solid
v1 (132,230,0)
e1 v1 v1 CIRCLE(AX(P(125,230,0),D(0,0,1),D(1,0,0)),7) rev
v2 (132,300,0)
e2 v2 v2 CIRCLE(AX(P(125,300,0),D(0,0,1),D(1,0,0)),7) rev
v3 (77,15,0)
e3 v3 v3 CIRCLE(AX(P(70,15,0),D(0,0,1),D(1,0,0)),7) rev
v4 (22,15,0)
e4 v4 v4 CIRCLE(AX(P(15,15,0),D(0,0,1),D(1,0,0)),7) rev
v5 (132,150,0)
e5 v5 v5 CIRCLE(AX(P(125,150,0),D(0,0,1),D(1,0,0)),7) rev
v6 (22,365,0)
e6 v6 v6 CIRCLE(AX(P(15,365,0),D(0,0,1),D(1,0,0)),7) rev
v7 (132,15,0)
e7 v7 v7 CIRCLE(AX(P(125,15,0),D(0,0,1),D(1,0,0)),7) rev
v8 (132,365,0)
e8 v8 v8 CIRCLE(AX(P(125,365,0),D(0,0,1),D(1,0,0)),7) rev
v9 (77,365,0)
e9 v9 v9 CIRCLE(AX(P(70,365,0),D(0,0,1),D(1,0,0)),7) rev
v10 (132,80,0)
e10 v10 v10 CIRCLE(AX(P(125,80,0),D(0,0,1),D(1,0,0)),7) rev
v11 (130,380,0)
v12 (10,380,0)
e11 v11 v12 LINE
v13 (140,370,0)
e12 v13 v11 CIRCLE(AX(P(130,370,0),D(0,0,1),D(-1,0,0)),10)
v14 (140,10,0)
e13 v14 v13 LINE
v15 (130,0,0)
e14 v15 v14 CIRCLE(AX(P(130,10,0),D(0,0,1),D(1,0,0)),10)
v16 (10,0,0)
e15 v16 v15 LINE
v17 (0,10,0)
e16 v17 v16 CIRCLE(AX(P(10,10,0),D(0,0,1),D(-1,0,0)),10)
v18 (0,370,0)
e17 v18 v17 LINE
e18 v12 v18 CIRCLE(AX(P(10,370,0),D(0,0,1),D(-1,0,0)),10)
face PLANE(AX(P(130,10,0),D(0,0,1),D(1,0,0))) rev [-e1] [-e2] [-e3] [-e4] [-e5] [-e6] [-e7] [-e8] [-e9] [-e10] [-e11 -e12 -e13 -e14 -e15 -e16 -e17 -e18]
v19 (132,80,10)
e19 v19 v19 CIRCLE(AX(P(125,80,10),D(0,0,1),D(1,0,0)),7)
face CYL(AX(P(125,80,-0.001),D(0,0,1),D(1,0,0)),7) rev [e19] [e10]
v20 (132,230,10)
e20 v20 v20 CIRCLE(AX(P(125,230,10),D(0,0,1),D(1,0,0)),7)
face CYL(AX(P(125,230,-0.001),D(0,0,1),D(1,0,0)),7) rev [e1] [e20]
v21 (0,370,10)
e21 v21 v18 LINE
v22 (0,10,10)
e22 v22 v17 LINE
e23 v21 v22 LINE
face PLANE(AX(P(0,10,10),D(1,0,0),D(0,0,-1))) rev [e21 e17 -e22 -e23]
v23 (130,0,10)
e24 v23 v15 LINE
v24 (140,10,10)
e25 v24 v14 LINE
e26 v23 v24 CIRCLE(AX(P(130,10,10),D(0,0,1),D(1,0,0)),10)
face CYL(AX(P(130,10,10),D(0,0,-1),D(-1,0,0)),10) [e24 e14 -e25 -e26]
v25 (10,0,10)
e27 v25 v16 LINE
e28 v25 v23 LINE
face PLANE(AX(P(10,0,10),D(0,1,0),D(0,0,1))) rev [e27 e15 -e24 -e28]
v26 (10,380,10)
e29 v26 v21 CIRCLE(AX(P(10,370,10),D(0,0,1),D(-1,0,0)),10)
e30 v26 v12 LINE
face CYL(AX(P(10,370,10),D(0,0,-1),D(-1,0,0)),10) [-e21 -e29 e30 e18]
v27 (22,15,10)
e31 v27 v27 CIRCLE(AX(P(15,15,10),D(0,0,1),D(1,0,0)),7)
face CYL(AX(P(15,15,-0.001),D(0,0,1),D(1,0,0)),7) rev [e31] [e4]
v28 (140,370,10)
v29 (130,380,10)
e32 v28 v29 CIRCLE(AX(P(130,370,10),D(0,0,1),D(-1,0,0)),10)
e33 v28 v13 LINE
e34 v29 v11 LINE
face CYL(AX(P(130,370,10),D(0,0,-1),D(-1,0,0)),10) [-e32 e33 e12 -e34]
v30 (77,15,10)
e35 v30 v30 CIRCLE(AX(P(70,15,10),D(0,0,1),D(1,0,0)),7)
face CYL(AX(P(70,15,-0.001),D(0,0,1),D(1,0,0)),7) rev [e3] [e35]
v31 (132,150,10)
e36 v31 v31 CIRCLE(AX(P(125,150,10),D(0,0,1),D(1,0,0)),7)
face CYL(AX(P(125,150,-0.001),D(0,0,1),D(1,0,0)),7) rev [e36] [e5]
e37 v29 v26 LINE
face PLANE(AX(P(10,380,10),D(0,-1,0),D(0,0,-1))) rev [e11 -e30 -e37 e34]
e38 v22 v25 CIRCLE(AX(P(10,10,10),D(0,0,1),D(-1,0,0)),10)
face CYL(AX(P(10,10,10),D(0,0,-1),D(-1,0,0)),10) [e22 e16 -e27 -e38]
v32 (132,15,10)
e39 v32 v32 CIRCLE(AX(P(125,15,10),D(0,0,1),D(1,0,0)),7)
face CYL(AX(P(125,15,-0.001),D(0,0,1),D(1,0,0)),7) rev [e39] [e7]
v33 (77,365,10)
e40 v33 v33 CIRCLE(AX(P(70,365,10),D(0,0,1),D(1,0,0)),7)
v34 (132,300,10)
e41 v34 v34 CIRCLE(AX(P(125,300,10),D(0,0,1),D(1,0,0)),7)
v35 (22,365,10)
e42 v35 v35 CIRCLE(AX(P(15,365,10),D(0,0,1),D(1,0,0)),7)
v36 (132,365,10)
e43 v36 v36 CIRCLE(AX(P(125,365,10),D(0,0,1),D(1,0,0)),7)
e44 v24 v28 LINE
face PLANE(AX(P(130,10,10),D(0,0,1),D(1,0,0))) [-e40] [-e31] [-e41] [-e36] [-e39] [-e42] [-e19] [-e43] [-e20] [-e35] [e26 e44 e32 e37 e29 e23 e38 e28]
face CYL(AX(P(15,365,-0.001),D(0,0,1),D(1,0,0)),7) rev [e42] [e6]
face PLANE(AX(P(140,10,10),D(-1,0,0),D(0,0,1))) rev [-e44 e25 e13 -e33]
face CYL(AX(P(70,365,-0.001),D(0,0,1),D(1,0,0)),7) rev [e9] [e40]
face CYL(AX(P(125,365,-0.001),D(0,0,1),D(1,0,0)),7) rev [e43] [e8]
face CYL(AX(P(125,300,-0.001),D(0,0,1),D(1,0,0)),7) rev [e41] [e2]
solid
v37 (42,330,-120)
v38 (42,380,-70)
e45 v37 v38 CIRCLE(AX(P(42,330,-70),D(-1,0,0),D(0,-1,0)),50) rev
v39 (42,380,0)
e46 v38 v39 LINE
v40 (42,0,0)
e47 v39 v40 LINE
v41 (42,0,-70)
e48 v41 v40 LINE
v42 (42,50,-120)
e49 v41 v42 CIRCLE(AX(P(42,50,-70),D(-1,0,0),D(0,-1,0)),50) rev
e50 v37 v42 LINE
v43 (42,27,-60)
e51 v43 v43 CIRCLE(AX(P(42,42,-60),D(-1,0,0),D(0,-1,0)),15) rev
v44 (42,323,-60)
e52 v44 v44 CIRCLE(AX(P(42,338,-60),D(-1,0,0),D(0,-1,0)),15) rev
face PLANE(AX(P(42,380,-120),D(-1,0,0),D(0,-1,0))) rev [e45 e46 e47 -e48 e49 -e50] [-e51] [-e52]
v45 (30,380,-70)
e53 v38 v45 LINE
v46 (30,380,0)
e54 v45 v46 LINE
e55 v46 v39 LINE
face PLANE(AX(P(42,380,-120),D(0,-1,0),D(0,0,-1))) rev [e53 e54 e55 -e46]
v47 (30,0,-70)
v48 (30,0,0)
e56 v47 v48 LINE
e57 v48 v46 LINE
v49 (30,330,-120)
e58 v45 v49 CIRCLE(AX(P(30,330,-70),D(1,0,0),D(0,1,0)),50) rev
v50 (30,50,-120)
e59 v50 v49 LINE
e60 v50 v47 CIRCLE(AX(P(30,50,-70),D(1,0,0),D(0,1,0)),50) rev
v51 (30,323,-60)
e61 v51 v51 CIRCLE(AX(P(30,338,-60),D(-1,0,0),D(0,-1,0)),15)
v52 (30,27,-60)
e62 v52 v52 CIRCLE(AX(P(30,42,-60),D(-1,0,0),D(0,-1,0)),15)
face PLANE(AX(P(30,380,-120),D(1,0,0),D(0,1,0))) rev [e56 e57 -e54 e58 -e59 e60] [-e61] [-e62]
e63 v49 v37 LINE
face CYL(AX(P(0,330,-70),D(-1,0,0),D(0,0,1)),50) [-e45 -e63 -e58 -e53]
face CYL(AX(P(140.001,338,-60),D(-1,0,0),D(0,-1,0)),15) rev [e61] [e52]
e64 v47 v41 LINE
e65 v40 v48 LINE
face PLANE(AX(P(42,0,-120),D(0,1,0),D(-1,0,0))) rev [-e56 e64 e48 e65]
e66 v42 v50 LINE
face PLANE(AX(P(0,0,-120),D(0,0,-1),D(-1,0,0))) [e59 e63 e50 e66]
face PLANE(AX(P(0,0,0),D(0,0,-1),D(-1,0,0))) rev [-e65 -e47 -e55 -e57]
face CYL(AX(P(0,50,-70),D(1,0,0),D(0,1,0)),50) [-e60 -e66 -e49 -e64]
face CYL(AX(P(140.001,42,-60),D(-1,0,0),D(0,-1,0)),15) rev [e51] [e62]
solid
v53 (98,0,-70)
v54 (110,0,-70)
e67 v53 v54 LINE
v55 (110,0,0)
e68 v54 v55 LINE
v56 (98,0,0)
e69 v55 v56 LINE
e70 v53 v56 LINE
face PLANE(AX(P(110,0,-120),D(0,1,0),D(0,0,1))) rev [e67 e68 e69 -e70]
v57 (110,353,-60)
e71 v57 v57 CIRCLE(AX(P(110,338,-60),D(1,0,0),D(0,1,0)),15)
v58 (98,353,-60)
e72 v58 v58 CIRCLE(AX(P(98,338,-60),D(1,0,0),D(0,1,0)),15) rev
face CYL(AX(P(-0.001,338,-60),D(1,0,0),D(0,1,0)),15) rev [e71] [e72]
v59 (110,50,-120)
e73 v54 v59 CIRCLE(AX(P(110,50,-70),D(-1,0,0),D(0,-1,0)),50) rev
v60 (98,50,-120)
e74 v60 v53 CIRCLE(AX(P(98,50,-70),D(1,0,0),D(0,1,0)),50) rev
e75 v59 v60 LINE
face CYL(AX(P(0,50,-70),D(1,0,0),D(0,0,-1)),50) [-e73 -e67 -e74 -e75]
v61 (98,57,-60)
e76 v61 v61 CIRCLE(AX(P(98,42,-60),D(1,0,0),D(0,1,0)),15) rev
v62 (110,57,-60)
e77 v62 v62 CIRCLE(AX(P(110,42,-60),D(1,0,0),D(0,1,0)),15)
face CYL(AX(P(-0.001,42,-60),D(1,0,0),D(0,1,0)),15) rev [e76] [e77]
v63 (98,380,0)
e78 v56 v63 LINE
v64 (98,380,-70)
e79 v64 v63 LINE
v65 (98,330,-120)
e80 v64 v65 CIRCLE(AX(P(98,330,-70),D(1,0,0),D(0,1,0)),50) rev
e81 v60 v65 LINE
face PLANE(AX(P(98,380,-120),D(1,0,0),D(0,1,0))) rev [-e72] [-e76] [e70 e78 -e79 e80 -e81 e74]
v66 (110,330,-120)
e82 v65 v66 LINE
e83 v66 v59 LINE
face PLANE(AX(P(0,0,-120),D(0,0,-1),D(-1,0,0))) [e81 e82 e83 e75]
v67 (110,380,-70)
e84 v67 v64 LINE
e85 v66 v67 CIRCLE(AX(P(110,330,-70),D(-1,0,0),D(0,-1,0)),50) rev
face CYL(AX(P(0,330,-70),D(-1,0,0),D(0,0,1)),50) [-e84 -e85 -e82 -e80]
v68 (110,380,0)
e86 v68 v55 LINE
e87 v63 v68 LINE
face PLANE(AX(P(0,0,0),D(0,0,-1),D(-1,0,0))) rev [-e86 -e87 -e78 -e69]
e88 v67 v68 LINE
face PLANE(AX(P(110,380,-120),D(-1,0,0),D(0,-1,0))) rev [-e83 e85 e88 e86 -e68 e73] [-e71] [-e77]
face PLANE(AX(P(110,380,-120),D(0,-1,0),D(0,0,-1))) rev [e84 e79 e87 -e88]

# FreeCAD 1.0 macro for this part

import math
import FreeCAD as App
import Part
import Sketcher
from FreeCAD import Vector
Q = App.Units.Quantity


def edges_at(feature, points):
    """Names of the edges that pass closest to the given points."""
    edges = feature.Shape.Edges
    near = lambda p: min(range(len(edges)), key=lambda i: edges[i].distToShape(Part.Vertex(*p))[0])
    return sorted({f"Edge{near(p) + 1}" for p in points})

doc = App.newDocument("Part")
params = doc.addObject("Spreadsheet::Sheet", "Params")
for row, (alias, value) in enumerate([
    ("sketch1_radius", "10 mm"),
    ("sketch1_width", "120 mm"),
    ("sketch1_height", "360 mm"),
    ("pad1_length", "10 mm"),
    ("sketch2_diameter", "14 mm"),
    ("sketch3_diameter", "14 mm"),
    ("sketch4_diameter", "14 mm"),
    ("sketch5_diameter", "14 mm"),
    ("sketch6_diameter", "14 mm"),
    ("sketch7_diameter", "14 mm"),
    ("sketch8_diameter", "14 mm"),
    ("sketch9_diameter", "14 mm"),
    ("sketch10_diameter", "14 mm"),
    ("sketch11_diameter", "14 mm"),
    ("sketch12_width", "12 mm"),
    ("sketch12_height", "380 mm"),
    ("pad2_length", "120 mm"),
    ("fillet_radius", "50 mm"),
    ("sketch13_diameter", "30 mm"),
    ("pocket11_length", "12 mm"),
    ("sketch14_width", "12 mm"),
    ("sketch14_height", "380 mm"),
    ("pad3_length", "120 mm"),
    ("fillet2_radius", "50 mm"),
    ("sketch15_diameter", "30 mm"),
    ("pocket12_length", "12 mm"),
], start=1):
    params.set(f"A{row}", alias)
    params.set(f"B{row}", "=" + value)
    params.setAlias(f"B{row}", alias)

body = doc.addObject("PartDesign::Body", "Body")

sketch1 = doc.addObject("Sketcher::SketchObject", "Sketch")
body.addObject(sketch1)
sketch1.AttachmentSupport = (doc.XY_Plane, [""])
sketch1.MapMode = "FlatFace"
sketch1.addGeometry([
    Part.LineSegment(Vector(10, 0, 0), Vector(130, 0, 0)),
    Part.ArcOfCircle(Part.Circle(Vector(130, 10, 0), Vector(0, 0, 1), 10), math.radians(-90), math.radians(0)),
    Part.LineSegment(Vector(140, 10, 0), Vector(140, 370, 0)),
    Part.ArcOfCircle(Part.Circle(Vector(130, 370, 0), Vector(0, 0, 1), 10), math.radians(0), math.radians(90)),
    Part.LineSegment(Vector(130, 380, 0), Vector(10, 380, 0)),
    Part.ArcOfCircle(Part.Circle(Vector(10, 370, 0), Vector(0, 0, 1), 10), math.radians(90), math.radians(180)),
    Part.LineSegment(Vector(0, 370, 0), Vector(0, 10, 0)),
    Part.ArcOfCircle(Part.Circle(Vector(10, 10, 0), Vector(0, 0, 1), 10), math.radians(180), math.radians(270)),
], False)
sketch1.addConstraint([
    Sketcher.Constraint("Tangent", 0, 2, 1, 1),
    Sketcher.Constraint("Tangent", 1, 2, 2, 1),
    Sketcher.Constraint("Tangent", 2, 2, 3, 1),
    Sketcher.Constraint("Tangent", 3, 2, 4, 1),
    Sketcher.Constraint("Tangent", 4, 2, 5, 1),
    Sketcher.Constraint("Tangent", 5, 2, 6, 1),
    Sketcher.Constraint("Tangent", 6, 2, 7, 1),
    Sketcher.Constraint("Tangent", 7, 2, 0, 1),
    Sketcher.Constraint("Horizontal", 0),
    Sketcher.Constraint("Vertical", 2),
    Sketcher.Constraint("Horizontal", 4),
    Sketcher.Constraint("Vertical", 6),
    Sketcher.Constraint("Equal", 1, 3),
    Sketcher.Constraint("Equal", 3, 5),
    Sketcher.Constraint("Equal", 5, 7),
    Sketcher.Constraint("PointOnObject", 0, 2, -1),
    Sketcher.Constraint("PointOnObject", 5, 2, -2),
    Sketcher.Constraint("Radius", 1, Q("10 mm")),
    Sketcher.Constraint("DistanceX", 0, 1, 0, 2, Q("120 mm")),
    Sketcher.Constraint("DistanceY", 2, 1, 2, 2, Q("360 mm")),
])
sketch1.setExpression("Constraints[17]", "Params.sketch1_radius")
sketch1.setExpression("Constraints[18]", "Params.sketch1_width")
sketch1.setExpression("Constraints[19]", "Params.sketch1_height")
pad1 = doc.addObject("PartDesign::Pad", "Pad")
body.addObject(pad1)
pad1.Profile = sketch1
pad1.setExpression("Length", "Params.pad1_length")

sketch2 = doc.addObject("Sketcher::SketchObject", "Sketch001")
body.addObject(sketch2)
sketch2.AttachmentSupport = (doc.XY_Plane, [""])
sketch2.MapMode = "FlatFace"
sketch2.AttachmentOffset = App.Placement(Vector(0, 0, 10), App.Rotation())
sketch2.addGeometry(Part.Circle(Vector(15, 365, 0), Vector(0, 0, 1), 7), False)
sketch2.addConstraint([
    Sketcher.Constraint("Diameter", 0, Q("14 mm")),
    Sketcher.Constraint("DistanceX", -1, 1, 0, 3, Q("15 mm")),
    Sketcher.Constraint("DistanceY", -1, 1, 0, 3, Q("365 mm")),
])
sketch2.setExpression("Constraints[0]", "Params.sketch2_diameter")
pocket1 = doc.addObject("PartDesign::Pocket", "Pocket")
body.addObject(pocket1)
pocket1.Profile = sketch2
pocket1.Type = "UpToFirst"

sketch3 = doc.addObject("Sketcher::SketchObject", "Sketch002")
body.addObject(sketch3)
sketch3.AttachmentSupport = (doc.XY_Plane, [""])
sketch3.MapMode = "FlatFace"
sketch3.AttachmentOffset = App.Placement(Vector(0, 0, 10), App.Rotation())
sketch3.addGeometry(Part.Circle(Vector(125, 365, 0), Vector(0, 0, 1), 7), False)
sketch3.addConstraint([
    Sketcher.Constraint("Diameter", 0, Q("14 mm")),
    Sketcher.Constraint("DistanceX", -1, 1, 0, 3, Q("125 mm")),
    Sketcher.Constraint("DistanceY", -1, 1, 0, 3, Q("365 mm")),
])
sketch3.setExpression("Constraints[0]", "Params.sketch3_diameter")
pocket2 = doc.addObject("PartDesign::Pocket", "Pocket001")
body.addObject(pocket2)
pocket2.Profile = sketch3
pocket2.Type = "UpToFirst"

sketch4 = doc.addObject("Sketcher::SketchObject", "Sketch003")
body.addObject(sketch4)
sketch4.AttachmentSupport = (doc.XY_Plane, [""])
sketch4.MapMode = "FlatFace"
sketch4.AttachmentOffset = App.Placement(Vector(0, 0, 10), App.Rotation())
sketch4.addGeometry(Part.Circle(Vector(15, 15, 0), Vector(0, 0, 1), 7), False)
sketch4.addConstraint([
    Sketcher.Constraint("Diameter", 0, Q("14 mm")),
    Sketcher.Constraint("DistanceX", -1, 1, 0, 3, Q("15 mm")),
    Sketcher.Constraint("DistanceY", -1, 1, 0, 3, Q("15 mm")),
])
sketch4.setExpression("Constraints[0]", "Params.sketch4_diameter")
pocket3 = doc.addObject("PartDesign::Pocket", "Pocket002")
body.addObject(pocket3)
pocket3.Profile = sketch4
pocket3.Type = "UpToFirst"

sketch5 = doc.addObject("Sketcher::SketchObject", "Sketch004")
body.addObject(sketch5)
sketch5.AttachmentSupport = (doc.XY_Plane, [""])
sketch5.MapMode = "FlatFace"
sketch5.AttachmentOffset = App.Placement(Vector(0, 0, 10), App.Rotation())
sketch5.addGeometry(Part.Circle(Vector(125, 15, 0), Vector(0, 0, 1), 7), False)
sketch5.addConstraint([
    Sketcher.Constraint("Diameter", 0, Q("14 mm")),
    Sketcher.Constraint("DistanceX", -1, 1, 0, 3, Q("125 mm")),
    Sketcher.Constraint("DistanceY", -1, 1, 0, 3, Q("15 mm")),
])
sketch5.setExpression("Constraints[0]", "Params.sketch5_diameter")
pocket4 = doc.addObject("PartDesign::Pocket", "Pocket003")
body.addObject(pocket4)
pocket4.Profile = sketch5
pocket4.Type = "UpToFirst"

sketch6 = doc.addObject("Sketcher::SketchObject", "Sketch005")
body.addObject(sketch6)
sketch6.AttachmentSupport = (doc.XY_Plane, [""])
sketch6.MapMode = "FlatFace"
sketch6.AttachmentOffset = App.Placement(Vector(0, 0, 10), App.Rotation())
sketch6.addGeometry(Part.Circle(Vector(70, 365, 0), Vector(0, 0, 1), 7), False)
sketch6.addConstraint([
    Sketcher.Constraint("Diameter", 0, Q("14 mm")),
    Sketcher.Constraint("DistanceX", -1, 1, 0, 3, Q("70 mm")),
    Sketcher.Constraint("DistanceY", -1, 1, 0, 3, Q("365 mm")),
])
sketch6.setExpression("Constraints[0]", "Params.sketch6_diameter")
pocket5 = doc.addObject("PartDesign::Pocket", "Pocket004")
body.addObject(pocket5)
pocket5.Profile = sketch6
pocket5.Type = "UpToFirst"

sketch7 = doc.addObject("Sketcher::SketchObject", "Sketch006")
body.addObject(sketch7)
sketch7.AttachmentSupport = (doc.XY_Plane, [""])
sketch7.MapMode = "FlatFace"
sketch7.AttachmentOffset = App.Placement(Vector(0, 0, 10), App.Rotation())
sketch7.addGeometry(Part.Circle(Vector(70, 15, 0), Vector(0, 0, 1), 7), False)
sketch7.addConstraint([
    Sketcher.Constraint("Diameter", 0, Q("14 mm")),
    Sketcher.Constraint("DistanceX", -1, 1, 0, 3, Q("70 mm")),
    Sketcher.Constraint("DistanceY", -1, 1, 0, 3, Q("15 mm")),
])
sketch7.setExpression("Constraints[0]", "Params.sketch7_diameter")
pocket6 = doc.addObject("PartDesign::Pocket", "Pocket005")
body.addObject(pocket6)
pocket6.Profile = sketch7
pocket6.Type = "UpToFirst"

sketch8 = doc.addObject("Sketcher::SketchObject", "Sketch007")
body.addObject(sketch8)
sketch8.AttachmentSupport = (doc.XY_Plane, [""])
sketch8.MapMode = "FlatFace"
sketch8.AttachmentOffset = App.Placement(Vector(0, 0, 10), App.Rotation())
sketch8.addGeometry(Part.Circle(Vector(125, 300, 0), Vector(0, 0, 1), 7), False)
sketch8.addConstraint([
    Sketcher.Constraint("Diameter", 0, Q("14 mm")),
    Sketcher.Constraint("DistanceX", -1, 1, 0, 3, Q("125 mm")),
    Sketcher.Constraint("DistanceY", -1, 1, 0, 3, Q("300 mm")),
])
sketch8.setExpression("Constraints[0]", "Params.sketch8_diameter")
pocket7 = doc.addObject("PartDesign::Pocket", "Pocket006")
body.addObject(pocket7)
pocket7.Profile = sketch8
pocket7.Type = "UpToFirst"

sketch9 = doc.addObject("Sketcher::SketchObject", "Sketch008")
body.addObject(sketch9)
sketch9.AttachmentSupport = (doc.XY_Plane, [""])
sketch9.MapMode = "FlatFace"
sketch9.AttachmentOffset = App.Placement(Vector(0, 0, 10), App.Rotation())
sketch9.addGeometry(Part.Circle(Vector(125, 80, 0), Vector(0, 0, 1), 7), False)
sketch9.addConstraint([
    Sketcher.Constraint("Diameter", 0, Q("14 mm")),
    Sketcher.Constraint("DistanceX", -1, 1, 0, 3, Q("125 mm")),
    Sketcher.Constraint("DistanceY", -1, 1, 0, 3, Q("80 mm")),
])
sketch9.setExpression("Constraints[0]", "Params.sketch9_diameter")
pocket8 = doc.addObject("PartDesign::Pocket", "Pocket007")
body.addObject(pocket8)
pocket8.Profile = sketch9
pocket8.Type = "UpToFirst"

sketch10 = doc.addObject("Sketcher::SketchObject", "Sketch009")
body.addObject(sketch10)
sketch10.AttachmentSupport = (doc.XY_Plane, [""])
sketch10.MapMode = "FlatFace"
sketch10.AttachmentOffset = App.Placement(Vector(0, 0, 10), App.Rotation())
sketch10.addGeometry(Part.Circle(Vector(125, 230, 0), Vector(0, 0, 1), 7), False)
sketch10.addConstraint([
    Sketcher.Constraint("Diameter", 0, Q("14 mm")),
    Sketcher.Constraint("DistanceX", -1, 1, 0, 3, Q("125 mm")),
    Sketcher.Constraint("DistanceY", -1, 1, 0, 3, Q("230 mm")),
])
sketch10.setExpression("Constraints[0]", "Params.sketch10_diameter")
pocket9 = doc.addObject("PartDesign::Pocket", "Pocket008")
body.addObject(pocket9)
pocket9.Profile = sketch10
pocket9.Type = "UpToFirst"

sketch11 = doc.addObject("Sketcher::SketchObject", "Sketch010")
body.addObject(sketch11)
sketch11.AttachmentSupport = (doc.XY_Plane, [""])
sketch11.MapMode = "FlatFace"
sketch11.AttachmentOffset = App.Placement(Vector(0, 0, 10), App.Rotation())
sketch11.addGeometry(Part.Circle(Vector(125, 150, 0), Vector(0, 0, 1), 7), False)
sketch11.addConstraint([
    Sketcher.Constraint("Diameter", 0, Q("14 mm")),
    Sketcher.Constraint("DistanceX", -1, 1, 0, 3, Q("125 mm")),
    Sketcher.Constraint("DistanceY", -1, 1, 0, 3, Q("150 mm")),
])
sketch11.setExpression("Constraints[0]", "Params.sketch11_diameter")
pocket10 = doc.addObject("PartDesign::Pocket", "Pocket009")
body.addObject(pocket10)
pocket10.Profile = sketch11
pocket10.Type = "UpToFirst"
body2 = doc.addObject("PartDesign::Body", "Body001")

sketch12 = doc.addObject("Sketcher::SketchObject", "Sketch011")
body2.addObject(sketch12)
sketch12.AttachmentSupport = (doc.getObject("XY_Plane001"), [""])
sketch12.MapMode = "FlatFace"
sketch12.addGeometry([
    Part.LineSegment(Vector(110, 380, 0), Vector(110, 0, 0)),
    Part.LineSegment(Vector(110, 0, 0), Vector(98, 0, 0)),
    Part.LineSegment(Vector(98, 0, 0), Vector(98, 380, 0)),
    Part.LineSegment(Vector(98, 380, 0), Vector(110, 380, 0)),
], False)
sketch12.addConstraint([
    Sketcher.Constraint("Coincident", 0, 2, 1, 1),
    Sketcher.Constraint("Coincident", 1, 2, 2, 1),
    Sketcher.Constraint("Coincident", 2, 2, 3, 1),
    Sketcher.Constraint("Coincident", 3, 2, 0, 1),
    Sketcher.Constraint("Vertical", 0),
    Sketcher.Constraint("Horizontal", 1),
    Sketcher.Constraint("Vertical", 2),
    Sketcher.Constraint("Horizontal", 3),
    Sketcher.Constraint("PointOnObject", 0, 2, -1),
    Sketcher.Constraint("DistanceX", 1, 2, 1, 1, Q("12 mm")),
    Sketcher.Constraint("DistanceY", 0, 2, 0, 1, Q("380 mm")),
    Sketcher.Constraint("DistanceX", -1, 1, 0, 2, Q("110 mm")),
])
sketch12.setExpression("Constraints[9]", "Params.sketch12_width")
sketch12.setExpression("Constraints[10]", "Params.sketch12_height")
pad2 = doc.addObject("PartDesign::Pad", "Pad001")
body2.addObject(pad2)
pad2.Profile = sketch12
pad2.setExpression("Length", "Params.pad2_length")
pad2.Reversed = True
doc.recompute()

fillet = doc.addObject("PartDesign::Fillet", "Fillet")
body2.addObject(fillet)
fillet.Base = (pad2, edges_at(pad2, [(104, 380, -120), (104, 0, -120)]))
fillet.setExpression("Radius", "Params.fillet_radius")

sketch13 = doc.addObject("Sketcher::SketchObject", "Sketch012")
body2.addObject(sketch13)
sketch13.AttachmentSupport = (doc.getObject("YZ_Plane001"), [""])
sketch13.MapMode = "FlatFace"
sketch13.AttachmentOffset = App.Placement(Vector(0, 0, 110), App.Rotation())
sketch13.addGeometry([
    Part.Circle(Vector(338, -60, 0), Vector(0, 0, 1), 15),
    Part.Circle(Vector(42, -60, 0), Vector(0, 0, 1), 15),
], False)
sketch13.addConstraint([
    Sketcher.Constraint("Equal", 0, 1),
    Sketcher.Constraint("Horizontal", 0, 3, 1, 3),
    Sketcher.Constraint("Diameter", 0, Q("30 mm")),
    Sketcher.Constraint("DistanceX", -1, 1, 0, 3, Q("338 mm")),
    Sketcher.Constraint("DistanceY", 0, 3, -1, 1, Q("60 mm")),
    Sketcher.Constraint("DistanceX", -1, 1, 1, 3, Q("42 mm")),
])
sketch13.setExpression("Constraints[2]", "Params.sketch13_diameter")
pocket11 = doc.addObject("PartDesign::Pocket", "Pocket010")
body2.addObject(pocket11)
pocket11.Profile = sketch13
pocket11.setExpression("Length", "Params.pocket11_length")
body3 = doc.addObject("PartDesign::Body", "Body002")

sketch14 = doc.addObject("Sketcher::SketchObject", "Sketch013")
body3.addObject(sketch14)
sketch14.AttachmentSupport = (doc.getObject("XY_Plane002"), [""])
sketch14.MapMode = "FlatFace"
sketch14.addGeometry([
    Part.LineSegment(Vector(42, 380, 0), Vector(42, 0, 0)),
    Part.LineSegment(Vector(42, 0, 0), Vector(30, 0, 0)),
    Part.LineSegment(Vector(30, 0, 0), Vector(30, 380, 0)),
    Part.LineSegment(Vector(30, 380, 0), Vector(42, 380, 0)),
], False)
sketch14.addConstraint([
    Sketcher.Constraint("Coincident", 0, 2, 1, 1),
    Sketcher.Constraint("Coincident", 1, 2, 2, 1),
    Sketcher.Constraint("Coincident", 2, 2, 3, 1),
    Sketcher.Constraint("Coincident", 3, 2, 0, 1),
    Sketcher.Constraint("Vertical", 0),
    Sketcher.Constraint("Horizontal", 1),
    Sketcher.Constraint("Vertical", 2),
    Sketcher.Constraint("Horizontal", 3),
    Sketcher.Constraint("PointOnObject", 0, 2, -1),
    Sketcher.Constraint("DistanceX", 1, 2, 1, 1, Q("12 mm")),
    Sketcher.Constraint("DistanceY", 0, 2, 0, 1, Q("380 mm")),
    Sketcher.Constraint("DistanceX", -1, 1, 0, 2, Q("42 mm")),
])
sketch14.setExpression("Constraints[9]", "Params.sketch14_width")
sketch14.setExpression("Constraints[10]", "Params.sketch14_height")
pad3 = doc.addObject("PartDesign::Pad", "Pad002")
body3.addObject(pad3)
pad3.Profile = sketch14
pad3.setExpression("Length", "Params.pad3_length")
pad3.Reversed = True
doc.recompute()

fillet2 = doc.addObject("PartDesign::Fillet", "Fillet001")
body3.addObject(fillet2)
fillet2.Base = (pad3, edges_at(pad3, [(36, 380, -120), (36, 0, -120)]))
fillet2.setExpression("Radius", "Params.fillet2_radius")

sketch15 = doc.addObject("Sketcher::SketchObject", "Sketch014")
body3.addObject(sketch15)
sketch15.AttachmentSupport = (doc.getObject("YZ_Plane002"), [""])
sketch15.MapMode = "FlatFace"
sketch15.AttachmentOffset = App.Placement(Vector(0, 0, 30), App.Rotation())
sketch15.addGeometry([
    Part.Circle(Vector(338, -60, 0), Vector(0, 0, 1), 15),
    Part.Circle(Vector(42, -60, 0), Vector(0, 0, 1), 15),
], False)
sketch15.addConstraint([
    Sketcher.Constraint("Equal", 0, 1),
    Sketcher.Constraint("Horizontal", 0, 3, 1, 3),
    Sketcher.Constraint("Diameter", 0, Q("30 mm")),
    Sketcher.Constraint("DistanceX", -1, 1, 0, 3, Q("338 mm")),
    Sketcher.Constraint("DistanceY", 0, 3, -1, 1, Q("60 mm")),
    Sketcher.Constraint("DistanceX", -1, 1, 1, 3, Q("42 mm")),
])
sketch15.setExpression("Constraints[2]", "Params.sketch15_diameter")
pocket12 = doc.addObject("PartDesign::Pocket", "Pocket011")
body3.addObject(pocket12)
pocket12.Profile = sketch15
pocket12.setExpression("Length", "Params.pocket12_length")
pocket12.Reversed = True

doc.recompute()
